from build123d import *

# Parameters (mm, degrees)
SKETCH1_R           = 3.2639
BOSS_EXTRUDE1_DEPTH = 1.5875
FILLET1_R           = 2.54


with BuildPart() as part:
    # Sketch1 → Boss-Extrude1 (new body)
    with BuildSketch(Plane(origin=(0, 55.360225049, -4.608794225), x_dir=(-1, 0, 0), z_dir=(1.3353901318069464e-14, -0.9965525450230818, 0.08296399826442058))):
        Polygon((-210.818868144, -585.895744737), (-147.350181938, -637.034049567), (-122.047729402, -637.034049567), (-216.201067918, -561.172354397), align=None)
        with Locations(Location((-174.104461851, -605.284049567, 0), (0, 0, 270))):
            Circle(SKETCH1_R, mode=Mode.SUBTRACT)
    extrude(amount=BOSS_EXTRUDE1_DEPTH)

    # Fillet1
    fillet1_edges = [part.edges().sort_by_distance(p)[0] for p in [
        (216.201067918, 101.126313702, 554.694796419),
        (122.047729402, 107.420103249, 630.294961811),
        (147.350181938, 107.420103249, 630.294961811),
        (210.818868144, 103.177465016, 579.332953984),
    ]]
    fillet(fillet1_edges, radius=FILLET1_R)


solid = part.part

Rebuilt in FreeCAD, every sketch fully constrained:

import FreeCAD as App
import Part
import Sketcher

V = App.Vector
Q = App.Units.Quantity


def edges_at(feature, points):
    """Names of the edges that pass closest to the given points."""
    edges = feature.Shape.Edges
    near = lambda p: min(range(len(edges)), key=lambda i: edges[i].distToShape(Part.Vertex(*p))[0])
    return sorted({f"Edge{near(p) + 1}" for p in points})


def add_polygon(sketch, points):
    """Adds a closed chain of lines whose ends are joined by coincident constraints."""
    first, n = sketch.GeometryCount, len(points)
    for a, b in zip(points, points[1:] + points[:1]):
        sketch.addGeometry(Part.LineSegment(App.Vector(*a, 0), App.Vector(*b, 0)), False)
    for i in range(n):
        sketch.addConstraint(Sketcher.Constraint("Coincident", first + i, 2, first + (i + 1) % n, 1))

doc = App.newDocument("Part")
params = doc.addObject("Spreadsheet::Sheet", "Params")
for row, (alias, value) in enumerate([
    ("sketch1_diameter", "0.257 in"),
    ("pad1_length", "0.0625 in"),
    ("fillet_radius", "0.1 in"),
], start=1):
    params.set(f"A{row}", alias)
    params.set(f"B{row}", "=" + value)
    params.setAlias(f"B{row}", alias)

body = doc.addObject("PartDesign::Body", "Body")

# Sketch on an angled plane
sketch1 = body.newObject("Sketcher::SketchObject", "Sketch")
sketch1.Placement = App.Placement(V(0, 55.360225, -4.608794), App.Rotation(V(-1, 0, 0), V(0, -0.082963998, -0.996552545), V(0, -0.996552545, 0.082963998), "ZXY"))
add_polygon(sketch1, [(-210.818868, -585.895745), (-147.350182, -637.03405), (-122.047729, -637.03405), (-216.201068, -561.172354)])  # lines 0-3
sketch1.addGeometry(Part.Circle(V(-174.104462, -605.28405, 0), V(0, 0, 1), 3.2639), False)  # 4
sketch1.addConstraint([
    Sketcher.Constraint("Horizontal", 1),
    Sketcher.Constraint("Parallel", 0, 2),
    Sketcher.Constraint("Diameter", 4, Q("0.257 in")),
    Sketcher.Constraint("DistanceY", 0, 2, 4, 3, Q("1.25 in")),
    Sketcher.Constraint("DistanceX", 2, 2, 3, 2, 5.3822),
    Sketcher.Constraint("DistanceX", 1, 1, 1, 2, 25.302453),
    Sketcher.Constraint("DistanceX", 4, 3, -1, 1, 174.104462),
    Sketcher.Constraint("DistanceY", 4, 3, -1, 1, 605.28405),
    Sketcher.Constraint("DistanceX", 0, 2, -1, 1, 147.350182),
    Sketcher.Constraint("DistanceX", 3, 2, -1, 1, 210.818868),
    Sketcher.Constraint("DistanceY", 3, 2, 2, 2, 24.72339),
])
sketch1.setExpression("Constraints[6]", "Params.sketch1_diameter")
pad1 = body.newObject("PartDesign::Pad", "Pad")
pad1.Profile = sketch1
pad1.setExpression("Length", "Params.pad1_length")
doc.recompute()

fillet = body.newObject("PartDesign::Fillet", "Fillet")
fillet.Base = (pad1, edges_at(pad1, [
    (216.201, 101.126, 554.695),
    (122.048, 107.42, 630.295),
    (147.35, 107.42, 630.295),
    (210.819, 103.177, 579.333),
]))
fillet.setExpression("Radius", "Params.fillet_radius")

doc.recompute()
